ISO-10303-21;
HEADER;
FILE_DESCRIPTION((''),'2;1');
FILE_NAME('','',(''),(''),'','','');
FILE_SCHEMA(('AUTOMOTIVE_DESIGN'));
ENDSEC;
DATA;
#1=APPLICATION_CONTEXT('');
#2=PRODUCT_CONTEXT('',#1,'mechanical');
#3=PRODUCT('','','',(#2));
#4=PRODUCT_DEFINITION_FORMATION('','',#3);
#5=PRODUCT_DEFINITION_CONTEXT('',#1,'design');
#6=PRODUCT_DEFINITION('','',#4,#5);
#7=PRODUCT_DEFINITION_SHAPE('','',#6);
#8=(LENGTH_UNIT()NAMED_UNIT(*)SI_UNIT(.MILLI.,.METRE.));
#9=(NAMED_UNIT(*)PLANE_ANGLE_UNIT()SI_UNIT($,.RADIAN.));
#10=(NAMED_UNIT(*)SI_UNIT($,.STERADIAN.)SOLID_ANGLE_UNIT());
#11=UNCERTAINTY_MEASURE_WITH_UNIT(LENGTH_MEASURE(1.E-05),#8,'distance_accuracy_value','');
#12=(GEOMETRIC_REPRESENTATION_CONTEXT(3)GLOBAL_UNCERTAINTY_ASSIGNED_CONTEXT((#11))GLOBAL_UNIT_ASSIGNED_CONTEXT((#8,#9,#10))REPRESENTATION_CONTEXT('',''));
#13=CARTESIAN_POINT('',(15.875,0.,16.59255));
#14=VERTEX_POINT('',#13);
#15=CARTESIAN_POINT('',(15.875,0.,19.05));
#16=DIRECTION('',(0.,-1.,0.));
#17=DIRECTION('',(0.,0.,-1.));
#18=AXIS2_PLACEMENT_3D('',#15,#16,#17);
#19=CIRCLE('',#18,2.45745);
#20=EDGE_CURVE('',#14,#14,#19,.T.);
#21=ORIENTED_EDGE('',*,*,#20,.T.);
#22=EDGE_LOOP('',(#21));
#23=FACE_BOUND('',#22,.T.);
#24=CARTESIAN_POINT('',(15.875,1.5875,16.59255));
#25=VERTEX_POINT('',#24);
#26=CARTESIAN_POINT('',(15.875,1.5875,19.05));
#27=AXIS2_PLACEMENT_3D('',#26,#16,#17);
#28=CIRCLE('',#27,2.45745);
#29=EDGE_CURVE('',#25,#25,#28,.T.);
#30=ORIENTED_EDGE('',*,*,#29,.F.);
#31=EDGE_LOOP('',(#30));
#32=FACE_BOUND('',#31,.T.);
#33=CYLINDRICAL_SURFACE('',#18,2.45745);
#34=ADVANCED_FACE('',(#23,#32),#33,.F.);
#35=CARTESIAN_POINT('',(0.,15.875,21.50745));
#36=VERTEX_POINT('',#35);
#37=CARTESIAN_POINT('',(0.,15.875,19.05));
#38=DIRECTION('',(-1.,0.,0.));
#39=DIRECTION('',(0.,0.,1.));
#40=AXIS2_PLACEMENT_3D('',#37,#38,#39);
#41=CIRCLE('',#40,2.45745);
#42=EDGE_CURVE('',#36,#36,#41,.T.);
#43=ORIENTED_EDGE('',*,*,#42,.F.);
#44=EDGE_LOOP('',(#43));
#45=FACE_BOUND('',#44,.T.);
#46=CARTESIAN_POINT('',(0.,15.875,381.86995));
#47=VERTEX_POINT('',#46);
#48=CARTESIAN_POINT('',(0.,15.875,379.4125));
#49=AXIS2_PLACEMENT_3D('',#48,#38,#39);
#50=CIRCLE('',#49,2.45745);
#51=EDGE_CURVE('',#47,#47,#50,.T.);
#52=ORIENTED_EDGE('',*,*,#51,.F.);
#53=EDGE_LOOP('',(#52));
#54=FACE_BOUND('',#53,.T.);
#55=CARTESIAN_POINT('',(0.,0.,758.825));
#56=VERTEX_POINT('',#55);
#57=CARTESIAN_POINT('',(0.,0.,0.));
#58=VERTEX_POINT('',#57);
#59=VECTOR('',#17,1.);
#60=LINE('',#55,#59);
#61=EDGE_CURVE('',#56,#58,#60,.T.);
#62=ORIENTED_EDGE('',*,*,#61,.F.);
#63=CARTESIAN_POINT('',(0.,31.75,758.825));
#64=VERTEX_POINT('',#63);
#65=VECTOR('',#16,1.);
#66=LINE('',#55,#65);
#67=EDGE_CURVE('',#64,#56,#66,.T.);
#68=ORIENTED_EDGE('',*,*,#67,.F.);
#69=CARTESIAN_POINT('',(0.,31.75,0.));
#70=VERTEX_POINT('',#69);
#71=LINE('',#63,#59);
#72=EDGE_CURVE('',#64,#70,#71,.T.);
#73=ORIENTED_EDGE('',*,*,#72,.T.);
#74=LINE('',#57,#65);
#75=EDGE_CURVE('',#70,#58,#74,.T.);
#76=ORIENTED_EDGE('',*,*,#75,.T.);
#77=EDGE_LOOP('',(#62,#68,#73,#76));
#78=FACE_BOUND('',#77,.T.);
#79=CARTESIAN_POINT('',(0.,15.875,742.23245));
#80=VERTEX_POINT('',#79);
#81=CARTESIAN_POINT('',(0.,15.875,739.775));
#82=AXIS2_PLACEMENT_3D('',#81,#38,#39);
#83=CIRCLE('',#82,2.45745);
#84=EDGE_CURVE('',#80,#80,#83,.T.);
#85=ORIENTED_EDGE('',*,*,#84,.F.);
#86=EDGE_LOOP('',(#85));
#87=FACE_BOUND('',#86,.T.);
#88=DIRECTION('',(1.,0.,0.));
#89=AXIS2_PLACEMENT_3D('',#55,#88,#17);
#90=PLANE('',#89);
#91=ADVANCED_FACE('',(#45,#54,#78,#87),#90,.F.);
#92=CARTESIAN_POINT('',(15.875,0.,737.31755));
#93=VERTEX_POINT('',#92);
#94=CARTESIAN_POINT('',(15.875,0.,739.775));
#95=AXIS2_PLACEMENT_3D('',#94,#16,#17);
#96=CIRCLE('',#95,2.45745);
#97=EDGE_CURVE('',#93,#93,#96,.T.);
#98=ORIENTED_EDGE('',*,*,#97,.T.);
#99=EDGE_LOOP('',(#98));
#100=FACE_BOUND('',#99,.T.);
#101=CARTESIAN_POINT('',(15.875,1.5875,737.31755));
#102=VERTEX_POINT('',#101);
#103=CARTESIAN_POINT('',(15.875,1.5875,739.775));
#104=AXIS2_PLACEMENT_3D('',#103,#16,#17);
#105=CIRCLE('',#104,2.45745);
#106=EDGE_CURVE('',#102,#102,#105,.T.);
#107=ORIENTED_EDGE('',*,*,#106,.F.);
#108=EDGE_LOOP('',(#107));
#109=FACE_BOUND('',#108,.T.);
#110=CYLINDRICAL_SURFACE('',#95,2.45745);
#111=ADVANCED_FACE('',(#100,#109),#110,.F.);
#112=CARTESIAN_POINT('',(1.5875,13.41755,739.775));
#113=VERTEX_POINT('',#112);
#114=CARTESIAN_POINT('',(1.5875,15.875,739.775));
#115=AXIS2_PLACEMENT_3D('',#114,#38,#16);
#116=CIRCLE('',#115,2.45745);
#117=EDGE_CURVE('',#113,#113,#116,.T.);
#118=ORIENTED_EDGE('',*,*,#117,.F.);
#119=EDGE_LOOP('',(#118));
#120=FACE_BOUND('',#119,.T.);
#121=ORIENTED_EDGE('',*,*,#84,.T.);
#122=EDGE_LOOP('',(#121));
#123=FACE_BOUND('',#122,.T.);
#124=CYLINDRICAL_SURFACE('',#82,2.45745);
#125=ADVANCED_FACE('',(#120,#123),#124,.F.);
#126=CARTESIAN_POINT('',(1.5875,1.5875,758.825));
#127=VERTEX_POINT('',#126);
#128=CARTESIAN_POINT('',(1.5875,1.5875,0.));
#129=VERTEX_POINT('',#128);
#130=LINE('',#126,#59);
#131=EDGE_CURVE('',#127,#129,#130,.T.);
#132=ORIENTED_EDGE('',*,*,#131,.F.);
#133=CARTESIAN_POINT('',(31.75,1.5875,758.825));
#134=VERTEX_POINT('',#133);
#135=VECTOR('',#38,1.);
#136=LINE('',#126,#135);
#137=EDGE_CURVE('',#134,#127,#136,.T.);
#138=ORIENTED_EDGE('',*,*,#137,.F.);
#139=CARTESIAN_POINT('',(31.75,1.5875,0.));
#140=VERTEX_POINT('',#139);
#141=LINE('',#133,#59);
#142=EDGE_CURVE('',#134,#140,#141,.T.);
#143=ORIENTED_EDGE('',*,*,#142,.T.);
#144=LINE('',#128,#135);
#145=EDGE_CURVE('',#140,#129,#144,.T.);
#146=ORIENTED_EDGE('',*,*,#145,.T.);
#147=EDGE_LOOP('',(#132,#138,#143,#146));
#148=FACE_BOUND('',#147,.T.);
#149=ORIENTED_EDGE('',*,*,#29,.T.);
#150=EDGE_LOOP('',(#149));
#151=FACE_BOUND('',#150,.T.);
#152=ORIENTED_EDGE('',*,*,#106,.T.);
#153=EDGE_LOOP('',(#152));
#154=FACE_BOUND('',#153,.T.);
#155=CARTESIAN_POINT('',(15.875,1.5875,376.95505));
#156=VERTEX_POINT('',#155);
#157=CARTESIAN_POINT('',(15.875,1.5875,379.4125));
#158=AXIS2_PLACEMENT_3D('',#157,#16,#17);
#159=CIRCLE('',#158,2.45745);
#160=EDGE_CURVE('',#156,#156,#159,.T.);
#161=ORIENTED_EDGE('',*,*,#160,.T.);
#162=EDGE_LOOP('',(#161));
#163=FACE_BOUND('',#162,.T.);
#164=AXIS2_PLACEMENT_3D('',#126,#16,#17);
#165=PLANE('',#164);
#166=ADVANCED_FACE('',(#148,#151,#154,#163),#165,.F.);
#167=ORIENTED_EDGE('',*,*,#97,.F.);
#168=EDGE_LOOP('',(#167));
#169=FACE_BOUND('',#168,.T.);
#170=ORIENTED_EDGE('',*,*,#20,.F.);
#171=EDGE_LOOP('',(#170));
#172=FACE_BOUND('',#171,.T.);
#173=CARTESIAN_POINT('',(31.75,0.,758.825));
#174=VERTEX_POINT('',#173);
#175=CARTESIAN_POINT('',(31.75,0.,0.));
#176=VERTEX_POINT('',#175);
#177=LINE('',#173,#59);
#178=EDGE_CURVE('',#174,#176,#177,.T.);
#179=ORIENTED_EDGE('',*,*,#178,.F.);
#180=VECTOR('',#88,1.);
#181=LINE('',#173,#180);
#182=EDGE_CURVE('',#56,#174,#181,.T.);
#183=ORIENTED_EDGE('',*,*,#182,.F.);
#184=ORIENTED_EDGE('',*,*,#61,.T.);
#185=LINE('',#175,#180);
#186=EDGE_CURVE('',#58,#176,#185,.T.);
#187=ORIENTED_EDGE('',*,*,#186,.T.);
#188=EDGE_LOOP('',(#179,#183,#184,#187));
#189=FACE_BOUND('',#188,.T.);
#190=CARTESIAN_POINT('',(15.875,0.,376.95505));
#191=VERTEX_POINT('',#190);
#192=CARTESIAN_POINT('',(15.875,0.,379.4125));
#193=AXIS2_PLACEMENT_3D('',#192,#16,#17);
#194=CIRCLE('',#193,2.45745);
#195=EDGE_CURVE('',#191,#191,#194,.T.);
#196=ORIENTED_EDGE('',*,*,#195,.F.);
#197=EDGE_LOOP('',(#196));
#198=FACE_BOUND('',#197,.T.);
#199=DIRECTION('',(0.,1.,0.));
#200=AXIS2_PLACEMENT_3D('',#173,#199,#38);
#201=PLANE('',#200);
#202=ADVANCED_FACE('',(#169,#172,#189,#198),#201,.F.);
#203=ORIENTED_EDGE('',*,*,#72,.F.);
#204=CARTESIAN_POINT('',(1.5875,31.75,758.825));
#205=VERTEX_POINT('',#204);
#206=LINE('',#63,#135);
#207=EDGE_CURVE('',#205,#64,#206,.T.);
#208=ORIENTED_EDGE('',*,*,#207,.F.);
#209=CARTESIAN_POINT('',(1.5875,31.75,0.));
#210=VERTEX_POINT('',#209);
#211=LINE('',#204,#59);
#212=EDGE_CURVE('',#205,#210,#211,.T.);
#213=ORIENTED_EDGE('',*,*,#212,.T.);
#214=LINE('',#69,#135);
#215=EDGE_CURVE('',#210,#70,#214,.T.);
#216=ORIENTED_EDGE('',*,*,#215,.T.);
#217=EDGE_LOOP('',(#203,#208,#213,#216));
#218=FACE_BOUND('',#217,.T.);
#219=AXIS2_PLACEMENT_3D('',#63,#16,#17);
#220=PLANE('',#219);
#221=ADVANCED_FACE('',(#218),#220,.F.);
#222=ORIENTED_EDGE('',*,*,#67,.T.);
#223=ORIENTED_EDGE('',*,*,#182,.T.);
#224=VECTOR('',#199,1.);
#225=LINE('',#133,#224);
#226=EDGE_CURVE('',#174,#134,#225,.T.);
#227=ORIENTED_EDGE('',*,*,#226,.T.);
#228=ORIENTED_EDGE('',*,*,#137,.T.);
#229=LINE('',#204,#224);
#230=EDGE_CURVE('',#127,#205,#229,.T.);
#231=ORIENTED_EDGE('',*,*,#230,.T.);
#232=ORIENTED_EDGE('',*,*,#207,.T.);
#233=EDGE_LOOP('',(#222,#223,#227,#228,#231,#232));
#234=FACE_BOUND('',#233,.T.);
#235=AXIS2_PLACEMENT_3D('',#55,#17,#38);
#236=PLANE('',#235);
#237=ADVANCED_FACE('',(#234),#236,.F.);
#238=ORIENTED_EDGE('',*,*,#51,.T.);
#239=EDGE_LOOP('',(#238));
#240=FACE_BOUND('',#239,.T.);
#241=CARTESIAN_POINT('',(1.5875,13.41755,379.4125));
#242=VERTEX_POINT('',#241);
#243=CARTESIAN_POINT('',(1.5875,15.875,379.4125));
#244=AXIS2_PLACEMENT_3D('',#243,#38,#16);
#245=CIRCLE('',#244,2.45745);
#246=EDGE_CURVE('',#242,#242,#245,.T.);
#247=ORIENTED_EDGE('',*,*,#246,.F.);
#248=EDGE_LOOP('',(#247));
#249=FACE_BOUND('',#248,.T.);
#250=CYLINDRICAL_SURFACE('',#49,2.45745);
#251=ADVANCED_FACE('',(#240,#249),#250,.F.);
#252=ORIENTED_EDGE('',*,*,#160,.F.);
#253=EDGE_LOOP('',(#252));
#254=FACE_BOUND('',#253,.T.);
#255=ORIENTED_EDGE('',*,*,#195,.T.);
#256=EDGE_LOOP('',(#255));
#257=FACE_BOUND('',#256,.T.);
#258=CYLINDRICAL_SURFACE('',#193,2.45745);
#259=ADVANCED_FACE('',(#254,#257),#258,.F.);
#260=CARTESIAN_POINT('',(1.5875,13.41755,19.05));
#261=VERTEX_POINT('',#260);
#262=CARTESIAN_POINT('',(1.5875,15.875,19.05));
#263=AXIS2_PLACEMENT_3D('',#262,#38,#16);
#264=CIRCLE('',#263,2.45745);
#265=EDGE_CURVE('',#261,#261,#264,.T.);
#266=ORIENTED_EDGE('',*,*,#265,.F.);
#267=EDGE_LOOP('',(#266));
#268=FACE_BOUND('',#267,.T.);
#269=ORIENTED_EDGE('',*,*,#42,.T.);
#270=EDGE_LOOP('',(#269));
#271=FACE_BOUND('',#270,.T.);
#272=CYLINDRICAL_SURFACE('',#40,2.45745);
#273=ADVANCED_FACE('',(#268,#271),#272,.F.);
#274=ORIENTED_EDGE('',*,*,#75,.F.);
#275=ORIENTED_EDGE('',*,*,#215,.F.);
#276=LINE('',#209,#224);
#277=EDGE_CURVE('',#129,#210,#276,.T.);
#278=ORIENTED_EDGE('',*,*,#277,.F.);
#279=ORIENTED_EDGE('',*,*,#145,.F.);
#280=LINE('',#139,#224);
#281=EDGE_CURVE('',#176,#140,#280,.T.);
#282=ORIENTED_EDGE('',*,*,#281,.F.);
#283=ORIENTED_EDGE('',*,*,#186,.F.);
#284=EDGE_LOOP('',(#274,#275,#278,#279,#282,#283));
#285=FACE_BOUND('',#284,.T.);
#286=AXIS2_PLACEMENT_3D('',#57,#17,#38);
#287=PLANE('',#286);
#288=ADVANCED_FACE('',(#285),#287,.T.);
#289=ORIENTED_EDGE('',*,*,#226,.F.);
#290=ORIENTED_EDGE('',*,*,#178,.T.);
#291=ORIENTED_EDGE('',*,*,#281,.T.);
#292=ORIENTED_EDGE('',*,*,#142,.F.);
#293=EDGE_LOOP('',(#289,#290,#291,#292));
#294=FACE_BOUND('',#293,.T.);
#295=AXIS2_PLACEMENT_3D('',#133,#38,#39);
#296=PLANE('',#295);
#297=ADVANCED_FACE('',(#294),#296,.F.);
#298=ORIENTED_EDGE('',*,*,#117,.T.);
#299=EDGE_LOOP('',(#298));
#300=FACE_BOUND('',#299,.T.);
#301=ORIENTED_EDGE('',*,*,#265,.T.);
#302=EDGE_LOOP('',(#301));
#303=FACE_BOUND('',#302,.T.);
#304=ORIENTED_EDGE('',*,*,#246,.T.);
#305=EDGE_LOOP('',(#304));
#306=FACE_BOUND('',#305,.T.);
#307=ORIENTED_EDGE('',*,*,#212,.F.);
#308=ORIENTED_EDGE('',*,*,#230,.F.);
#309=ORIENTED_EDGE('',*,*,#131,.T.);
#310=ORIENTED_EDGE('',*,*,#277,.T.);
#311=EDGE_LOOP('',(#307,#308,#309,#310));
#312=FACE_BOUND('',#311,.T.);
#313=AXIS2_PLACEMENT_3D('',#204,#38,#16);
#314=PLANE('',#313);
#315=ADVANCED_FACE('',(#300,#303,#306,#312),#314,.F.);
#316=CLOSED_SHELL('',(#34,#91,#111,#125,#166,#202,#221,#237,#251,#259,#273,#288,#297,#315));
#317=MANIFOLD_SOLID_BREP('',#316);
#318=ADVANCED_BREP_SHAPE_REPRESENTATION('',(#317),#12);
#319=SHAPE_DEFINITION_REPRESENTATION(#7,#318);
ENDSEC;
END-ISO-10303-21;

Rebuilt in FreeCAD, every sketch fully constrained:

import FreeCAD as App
import Part
import Sketcher
Q = App.Units.Quantity


def add_polygon(sketch, points):
    """Adds a closed chain of lines whose ends are joined by coincident constraints."""
    first, n = sketch.GeometryCount, len(points)
    for a, b in zip(points, points[1:] + points[:1]):
        sketch.addGeometry(Part.LineSegment(App.Vector(*a, 0), App.Vector(*b, 0)), False)
    for i in range(n):
        sketch.addConstraint(Sketcher.Constraint("Coincident", first + i, 2, first + (i + 1) % n, 1))

doc = App.newDocument("Part")
body = doc.addObject("PartDesign::Body", "Body")

sketch1 = body.newObject("Sketcher::SketchObject", "Sketch")
sketch1.AttachmentSupport = (doc.getObject("XY_Plane"), [""])
sketch1.MapMode = "FlatFace"
add_polygon(sketch1, [(0, 31.8), (0, 0), (31.8, 0), (31.8, 1.6), (1.6, 1.6), (1.6, 31.8)])
sketch1.addConstraint(Sketcher.Constraint("Vertical", 0))
sketch1.addConstraint(Sketcher.Constraint("Horizontal", 1))
sketch1.addConstraint(Sketcher.Constraint("Vertical", 2))
sketch1.addConstraint(Sketcher.Constraint("Horizontal", 3))
sketch1.addConstraint(Sketcher.Constraint("Vertical", 4))
sketch1.addConstraint(Sketcher.Constraint("Horizontal", 5))
sketch1.addConstraint(Sketcher.Constraint("Coincident", 0, 2, -1, 1))
sketch1.addConstraint(Sketcher.Constraint("Equal", 1, 0))
sketch1.addConstraint(Sketcher.Constraint("Equal", 5, 2))
sketch1.addConstraint(Sketcher.Constraint("DistanceX", 1, 1, 1, 2, Q("1.25 in")))
sketch1.addConstraint(Sketcher.Constraint("DistanceX", 3, 2, 3, 1, Q("1.1875 in")))
pad1 = body.newObject("PartDesign::Pad", "Pad")
pad1.Profile = sketch1
pad1.Length = Q("29.875 in")

sketch2 = body.newObject("Sketcher::SketchObject", "Sketch001")
sketch2.AttachmentSupport = (doc.getObject("YZ_Plane"), [""])
sketch2.MapMode = "FlatFace"
sketch2.addGeometry(Part.Circle(App.Vector(15.9, 19.1, 0), App.Vector(0, 0, 1), 2.5), False)
sketch2.addGeometry(Part.Circle(App.Vector(15.9, 379.4, 0), App.Vector(0, 0, 1), 2.5), False)
sketch2.addGeometry(Part.Circle(App.Vector(15.9, 739.8, 0), App.Vector(0, 0, 1), 2.5), False)
sketch2.addConstraint(Sketcher.Constraint("Equal", 0, 1))
sketch2.addConstraint(Sketcher.Constraint("Equal", 1, 2))
sketch2.addConstraint(Sketcher.Constraint("Vertical", 0, 3, 1, 3))
sketch2.addConstraint(Sketcher.Constraint("Vertical", 1, 3, 2, 3))
sketch2.addConstraint(Sketcher.Constraint("Diameter", 0, Q("0.1935 in")))
sketch2.addConstraint(Sketcher.Constraint("DistanceY", -1, 1, 0, 3, Q("0.75 in")))
sketch2.addConstraint(Sketcher.Constraint("DistanceX", -1, 1, 0, 3, Q("0.625 in")))
sketch2.addConstraint(Sketcher.Constraint("DistanceY", -1, 1, 1, 3, Q("14.9375 in")))
sketch2.addConstraint(Sketcher.Constraint("DistanceY", -1, 1, 2, 3, Q("29.125 in")))
doc.recompute()
hole = body.newObject("PartDesign::Hole", "Hole")
hole.Profile = sketch2
hole.ThreadType = "None"
hole.Diameter = Q("0.1935 in")
hole.DepthType = "ThroughAll"
hole.Reversed = True

sketch3 = body.newObject("Sketcher::SketchObject", "Sketch002")
sketch3.AttachmentSupport = (doc.getObject("XZ_Plane"), [""])
sketch3.MapMode = "FlatFace"
sketch3.addGeometry(Part.Circle(App.Vector(15.9, 739.8, 0), App.Vector(0, 0, 1), 2.5), False)
sketch3.addGeometry(Part.Circle(App.Vector(15.9, 379.4, 0), App.Vector(0, 0, 1), 2.5), False)
sketch3.addGeometry(Part.Circle(App.Vector(15.9, 19.1, 0), App.Vector(0, 0, 1), 2.5), False)
sketch3.addConstraint(Sketcher.Constraint("Equal", 0, 1))
sketch3.addConstraint(Sketcher.Constraint("Equal", 1, 2))
sketch3.addConstraint(Sketcher.Constraint("Vertical", 0, 3, 1, 3))
sketch3.addConstraint(Sketcher.Constraint("Vertical", 1, 3, 2, 3))
sketch3.addConstraint(Sketcher.Constraint("Diameter", 0, Q("0.1935 in")))
sketch3.addConstraint(Sketcher.Constraint("DistanceY", -1, 1, 2, 3, Q("0.75 in")))
sketch3.addConstraint(Sketcher.Constraint("DistanceX", -1, 1, 0, 3, Q("0.625 in")))
sketch3.addConstraint(Sketcher.Constraint("DistanceY", -1, 1, 0, 3, Q("29.125 in")))
sketch3.addConstraint(Sketcher.Constraint("DistanceY", -1, 1, 1, 3, Q("14.9375 in")))
doc.recompute()
hole2 = body.newObject("PartDesign::Hole", "Hole001")
hole2.Profile = sketch3
hole2.ThreadType = "None"
hole2.Diameter = Q("0.1935 in")
hole2.DepthType = "ThroughAll"

doc.recompute()
